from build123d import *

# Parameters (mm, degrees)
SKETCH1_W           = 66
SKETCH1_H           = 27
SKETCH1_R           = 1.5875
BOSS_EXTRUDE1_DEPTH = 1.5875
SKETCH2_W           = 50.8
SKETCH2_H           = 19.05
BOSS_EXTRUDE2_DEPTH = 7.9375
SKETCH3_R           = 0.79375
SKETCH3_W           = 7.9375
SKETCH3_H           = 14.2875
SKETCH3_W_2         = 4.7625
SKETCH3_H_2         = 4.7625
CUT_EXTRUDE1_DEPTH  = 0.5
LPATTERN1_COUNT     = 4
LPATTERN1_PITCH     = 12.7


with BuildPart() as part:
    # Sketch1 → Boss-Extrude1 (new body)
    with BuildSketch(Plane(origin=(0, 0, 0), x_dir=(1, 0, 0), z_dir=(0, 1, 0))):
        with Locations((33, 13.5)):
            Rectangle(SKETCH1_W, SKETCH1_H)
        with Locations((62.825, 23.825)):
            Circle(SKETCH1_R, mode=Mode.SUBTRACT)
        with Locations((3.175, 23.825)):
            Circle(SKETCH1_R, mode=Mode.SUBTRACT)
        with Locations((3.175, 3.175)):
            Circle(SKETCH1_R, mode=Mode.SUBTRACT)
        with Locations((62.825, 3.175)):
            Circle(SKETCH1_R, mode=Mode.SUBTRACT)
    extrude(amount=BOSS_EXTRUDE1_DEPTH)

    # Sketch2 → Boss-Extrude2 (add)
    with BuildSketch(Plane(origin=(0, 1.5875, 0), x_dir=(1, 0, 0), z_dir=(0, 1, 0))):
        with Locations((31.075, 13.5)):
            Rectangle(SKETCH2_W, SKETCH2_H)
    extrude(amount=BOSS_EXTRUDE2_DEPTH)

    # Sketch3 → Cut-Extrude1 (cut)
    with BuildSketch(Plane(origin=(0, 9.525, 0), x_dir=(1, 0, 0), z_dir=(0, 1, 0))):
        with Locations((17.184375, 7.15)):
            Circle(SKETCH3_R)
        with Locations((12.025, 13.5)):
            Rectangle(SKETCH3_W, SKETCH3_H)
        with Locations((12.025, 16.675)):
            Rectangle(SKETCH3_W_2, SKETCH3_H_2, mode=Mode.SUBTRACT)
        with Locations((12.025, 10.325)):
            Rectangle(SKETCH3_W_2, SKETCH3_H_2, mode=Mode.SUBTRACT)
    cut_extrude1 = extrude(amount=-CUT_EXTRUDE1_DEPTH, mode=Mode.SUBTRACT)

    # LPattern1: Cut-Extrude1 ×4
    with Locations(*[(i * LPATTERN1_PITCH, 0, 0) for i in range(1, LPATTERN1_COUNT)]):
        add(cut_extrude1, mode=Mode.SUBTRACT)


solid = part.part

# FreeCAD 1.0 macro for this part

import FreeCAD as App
import Part
import Sketcher
from FreeCAD import Vector
Q = App.Units.Quantity

doc = App.newDocument("Part")
body = doc.addObject("PartDesign::Body", "Body")

# Sketch on XZ plane
sketch1 = body.newObject("Sketcher::SketchObject", "Sketch")
sketch1.AttachmentSupport = (doc.getObject("XZ_Plane"), [""])
sketch1.MapMode = "FlatFace"
sketch1.addGeometry([
    Part.LineSegment(Vector(0, -27, 0), Vector(0, 0, 0)),  # 0
    Part.LineSegment(Vector(0, 0, 0), Vector(66, 0, 0)),  # 1
    Part.LineSegment(Vector(66, 0, 0), Vector(66, -27, 0)),  # 2
    Part.LineSegment(Vector(66, -27, 0), Vector(0, -27, 0)),  # 3
    Part.Circle(Vector(3.2, -3.2, 0), Vector(0, 0, 1), 1.6),  # 4
    Part.Circle(Vector(62.8, -3.2, 0), Vector(0, 0, 1), 1.6),  # 5
    Part.Circle(Vector(3.2, -23.8, 0), Vector(0, 0, 1), 1.6),  # 6
    Part.Circle(Vector(62.8, -23.8, 0), Vector(0, 0, 1), 1.6),  # 7
], False)
sketch1.addConstraint([
    Sketcher.Constraint("Coincident", 0, 2, 1, 1),
    Sketcher.Constraint("Coincident", 1, 2, 2, 1),
    Sketcher.Constraint("Coincident", 2, 2, 3, 1),
    Sketcher.Constraint("Coincident", 3, 2, 0, 1),
    Sketcher.Constraint("Vertical", 0),
    Sketcher.Constraint("Horizontal", 1),
    Sketcher.Constraint("Vertical", 2),
    Sketcher.Constraint("Horizontal", 3),
    Sketcher.Constraint("Coincident", 0, 2, -1, 1),
    Sketcher.Constraint("Equal", 4, 5),
    Sketcher.Constraint("Equal", 5, 6),
    Sketcher.Constraint("Equal", 6, 7),
    Sketcher.Constraint("Horizontal", 4, 3, 5, 3),
    Sketcher.Constraint("Horizontal", 6, 3, 7, 3),
    Sketcher.Constraint("Vertical", 4, 3, 6, 3),
    Sketcher.Constraint("Vertical", 5, 3, 7, 3),
    Sketcher.Constraint("Diameter", 4, Q("0.125 in")),
    Sketcher.Constraint("DistanceX", -1, 1, 4, 3, Q("0.125 in")),
    Sketcher.Constraint("DistanceY", 4, 3, -1, 1, Q("0.125 in")),
    Sketcher.Constraint("DistanceX", 5, 3, 1, 2, Q("0.125 in")),
    Sketcher.Constraint("DistanceY", 2, 2, 7, 3, Q("0.125 in")),
    Sketcher.Constraint("DistanceX", 1, 1, 1, 2, 66.0),
    Sketcher.Constraint("DistanceY", 0, 1, 0, 2, 27.0),
])
pad1 = body.newObject("PartDesign::Pad", "Pad")
pad1.Profile = sketch1
pad1.Length = Q("0.0625 in")
pad1.Reversed = True

# Sketch on XZ plane
sketch2 = body.newObject("Sketcher::SketchObject", "Sketch001")
sketch2.AttachmentSupport = (doc.getObject("XZ_Plane"), [""])
sketch2.MapMode = "FlatFace"
sketch2.AttachmentOffset = App.Placement(Vector(0, 0, -0.0625 * 25.4), App.Rotation())
sketch2.addGeometry([
    Part.LineSegment(Vector(6, -23, 0), Vector(6, -4, 0)),
    Part.LineSegment(Vector(6, -4, 0), Vector(56, -4, 0)),
    Part.LineSegment(Vector(56, -4, 0), Vector(56, -23, 0)),
    Part.LineSegment(Vector(56, -23, 0), Vector(6, -23, 0)),
], False)
sketch2.addConstraint([
    Sketcher.Constraint("Coincident", 0, 2, 1, 1),
    Sketcher.Constraint("Coincident", 1, 2, 2, 1),
    Sketcher.Constraint("Coincident", 2, 2, 3, 1),
    Sketcher.Constraint("Coincident", 3, 2, 0, 1),
    Sketcher.Constraint("Vertical", 0),
    Sketcher.Constraint("Horizontal", 1),
    Sketcher.Constraint("Vertical", 2),
    Sketcher.Constraint("Horizontal", 3),
    Sketcher.Constraint("DistanceX", 1, 1, 1, 2, Q("2 in")),
    Sketcher.Constraint("DistanceY", 0, 1, 0, 2, Q("0.75 in")),
    Sketcher.Constraint("DistanceX", -1, 1, 0, 2, 5.675),
    Sketcher.Constraint("DistanceY", 0, 2, -1, 1, 3.975),
])
pad2 = body.newObject("PartDesign::Pad", "Pad001")
pad2.Profile = sketch2
pad2.Length = Q("0.3125 in")
pad2.Reversed = True

# Sketch on XZ plane
sketch3 = body.newObject("Sketcher::SketchObject", "Sketch002")
sketch3.AttachmentSupport = (doc.getObject("XZ_Plane"), [""])
sketch3.MapMode = "FlatFace"
sketch3.AttachmentOffset = App.Placement(Vector(0, 0, -0.375 * 25.4), App.Rotation())
sketch3.addGeometry([
    Part.Circle(Vector(17.2, -7.2, 0), Vector(0, 0, 1), 0.8),  # 0
    Part.LineSegment(Vector(8.1, -20.6, 0), Vector(8.1, -6.4, 0)),  # 1
    Part.LineSegment(Vector(8.1, -6.4, 0), Vector(16, -6.4, 0)),  # 2
    Part.LineSegment(Vector(16, -6.4, 0), Vector(16, -20.6, 0)),  # 3
    Part.LineSegment(Vector(16, -20.6, 0), Vector(8.1, -20.6, 0)),  # 4
    Part.LineSegment(Vector(14.4, -7.9, 0), Vector(9.6, -7.9, 0)),  # 5
    Part.LineSegment(Vector(9.6, -7.9, 0), Vector(9.6, -12.7, 0)),  # 6
    Part.LineSegment(Vector(9.6, -12.7, 0), Vector(14.4, -12.7, 0)),  # 7
    Part.LineSegment(Vector(14.4, -12.7, 0), Vector(14.4, -7.9, 0)),  # 8
    Part.LineSegment(Vector(14.4, -14.3, 0), Vector(9.6, -14.3, 0)),  # 9
    Part.LineSegment(Vector(9.6, -14.3, 0), Vector(9.6, -19.1, 0)),  # 10
    Part.LineSegment(Vector(9.6, -19.1, 0), Vector(14.4, -19.1, 0)),  # 11
    Part.LineSegment(Vector(14.4, -19.1, 0), Vector(14.4, -14.3, 0)),  # 12
], False)
sketch3.addConstraint([
    Sketcher.Constraint("Coincident", 1, 2, 2, 1),
    Sketcher.Constraint("Coincident", 2, 2, 3, 1),
    Sketcher.Constraint("Coincident", 3, 2, 4, 1),
    Sketcher.Constraint("Coincident", 4, 2, 1, 1),
    Sketcher.Constraint("Coincident", 5, 2, 6, 1),
    Sketcher.Constraint("Coincident", 6, 2, 7, 1),
    Sketcher.Constraint("Coincident", 7, 2, 8, 1),
    Sketcher.Constraint("Coincident", 8, 2, 5, 1),
    Sketcher.Constraint("Coincident", 9, 2, 10, 1),
    Sketcher.Constraint("Coincident", 10, 2, 11, 1),
    Sketcher.Constraint("Coincident", 11, 2, 12, 1),
    Sketcher.Constraint("Coincident", 12, 2, 9, 1),
    Sketcher.Constraint("Vertical", 1),
    Sketcher.Constraint("Horizontal", 2),
    Sketcher.Constraint("Vertical", 3),
    Sketcher.Constraint("Horizontal", 4),
    Sketcher.Constraint("Horizontal", 5),
    Sketcher.Constraint("Vertical", 6),
    Sketcher.Constraint("Horizontal", 7),
    Sketcher.Constraint("Vertical", 8),
    Sketcher.Constraint("Horizontal", 9),
    Sketcher.Constraint("Vertical", 10),
    Sketcher.Constraint("Horizontal", 11),
    Sketcher.Constraint("Vertical", 12),
    Sketcher.Constraint("Vertical", 6, 2, 9, 2),
    Sketcher.Constraint("Vertical", 8, 2, 11, 2),
    Sketcher.Constraint("Equal", 11, 6),
    Sketcher.Constraint("Equal", 8, 10),
    Sketcher.Constraint("Diameter", 0, Q("0.0625 in")),
    Sketcher.Constraint("DistanceY", 4, 2, 5, 2, Q("0.5 in")),
    Sketcher.Constraint("DistanceX", 2, 1, 2, 2, Q("0.3125 in")),
    Sketcher.Constraint("DistanceX", 5, 2, 5, 1, Q("0.1875 in")),
    Sketcher.Constraint("DistanceY", 1, 1, 1, 2, Q("0.5625 in")),
    Sketcher.Constraint("DistanceX", 5, 2, 2, 2, Q("0.25 in")),
    Sketcher.Constraint("DistanceY", 9, 2, 5, 2, Q("0.25 in")),
    Sketcher.Constraint("DistanceX", 1, 2, 0, 3, Q("0.359375 in")),
    Sketcher.Constraint("DistanceY", 0, 3, 1, 2, Q("0.03125 in")),
    Sketcher.Constraint("DistanceY", 0, 3, -1, 1, 7.15),
    Sketcher.Constraint("DistanceX", -1, 1, 1, 2, 8.05625),
])
pocket1 = body.newObject("PartDesign::Pocket", "Pocket")
pocket1.Profile = sketch3
pocket1.Length = 0.5
pocket1.Reversed = True
doc.recompute()

linearpattern = body.newObject("PartDesign::LinearPattern", "LinearPattern")
linearpattern.Originals = [pocket1]
linearpattern.Direction = (doc.getObject("X_Axis"), [""])
linearpattern.Mode = "offset"
linearpattern.Offset = Q("0.5 in")
linearpattern.Occurrences = 4
body.Tip = linearpattern

doc.recompute()
